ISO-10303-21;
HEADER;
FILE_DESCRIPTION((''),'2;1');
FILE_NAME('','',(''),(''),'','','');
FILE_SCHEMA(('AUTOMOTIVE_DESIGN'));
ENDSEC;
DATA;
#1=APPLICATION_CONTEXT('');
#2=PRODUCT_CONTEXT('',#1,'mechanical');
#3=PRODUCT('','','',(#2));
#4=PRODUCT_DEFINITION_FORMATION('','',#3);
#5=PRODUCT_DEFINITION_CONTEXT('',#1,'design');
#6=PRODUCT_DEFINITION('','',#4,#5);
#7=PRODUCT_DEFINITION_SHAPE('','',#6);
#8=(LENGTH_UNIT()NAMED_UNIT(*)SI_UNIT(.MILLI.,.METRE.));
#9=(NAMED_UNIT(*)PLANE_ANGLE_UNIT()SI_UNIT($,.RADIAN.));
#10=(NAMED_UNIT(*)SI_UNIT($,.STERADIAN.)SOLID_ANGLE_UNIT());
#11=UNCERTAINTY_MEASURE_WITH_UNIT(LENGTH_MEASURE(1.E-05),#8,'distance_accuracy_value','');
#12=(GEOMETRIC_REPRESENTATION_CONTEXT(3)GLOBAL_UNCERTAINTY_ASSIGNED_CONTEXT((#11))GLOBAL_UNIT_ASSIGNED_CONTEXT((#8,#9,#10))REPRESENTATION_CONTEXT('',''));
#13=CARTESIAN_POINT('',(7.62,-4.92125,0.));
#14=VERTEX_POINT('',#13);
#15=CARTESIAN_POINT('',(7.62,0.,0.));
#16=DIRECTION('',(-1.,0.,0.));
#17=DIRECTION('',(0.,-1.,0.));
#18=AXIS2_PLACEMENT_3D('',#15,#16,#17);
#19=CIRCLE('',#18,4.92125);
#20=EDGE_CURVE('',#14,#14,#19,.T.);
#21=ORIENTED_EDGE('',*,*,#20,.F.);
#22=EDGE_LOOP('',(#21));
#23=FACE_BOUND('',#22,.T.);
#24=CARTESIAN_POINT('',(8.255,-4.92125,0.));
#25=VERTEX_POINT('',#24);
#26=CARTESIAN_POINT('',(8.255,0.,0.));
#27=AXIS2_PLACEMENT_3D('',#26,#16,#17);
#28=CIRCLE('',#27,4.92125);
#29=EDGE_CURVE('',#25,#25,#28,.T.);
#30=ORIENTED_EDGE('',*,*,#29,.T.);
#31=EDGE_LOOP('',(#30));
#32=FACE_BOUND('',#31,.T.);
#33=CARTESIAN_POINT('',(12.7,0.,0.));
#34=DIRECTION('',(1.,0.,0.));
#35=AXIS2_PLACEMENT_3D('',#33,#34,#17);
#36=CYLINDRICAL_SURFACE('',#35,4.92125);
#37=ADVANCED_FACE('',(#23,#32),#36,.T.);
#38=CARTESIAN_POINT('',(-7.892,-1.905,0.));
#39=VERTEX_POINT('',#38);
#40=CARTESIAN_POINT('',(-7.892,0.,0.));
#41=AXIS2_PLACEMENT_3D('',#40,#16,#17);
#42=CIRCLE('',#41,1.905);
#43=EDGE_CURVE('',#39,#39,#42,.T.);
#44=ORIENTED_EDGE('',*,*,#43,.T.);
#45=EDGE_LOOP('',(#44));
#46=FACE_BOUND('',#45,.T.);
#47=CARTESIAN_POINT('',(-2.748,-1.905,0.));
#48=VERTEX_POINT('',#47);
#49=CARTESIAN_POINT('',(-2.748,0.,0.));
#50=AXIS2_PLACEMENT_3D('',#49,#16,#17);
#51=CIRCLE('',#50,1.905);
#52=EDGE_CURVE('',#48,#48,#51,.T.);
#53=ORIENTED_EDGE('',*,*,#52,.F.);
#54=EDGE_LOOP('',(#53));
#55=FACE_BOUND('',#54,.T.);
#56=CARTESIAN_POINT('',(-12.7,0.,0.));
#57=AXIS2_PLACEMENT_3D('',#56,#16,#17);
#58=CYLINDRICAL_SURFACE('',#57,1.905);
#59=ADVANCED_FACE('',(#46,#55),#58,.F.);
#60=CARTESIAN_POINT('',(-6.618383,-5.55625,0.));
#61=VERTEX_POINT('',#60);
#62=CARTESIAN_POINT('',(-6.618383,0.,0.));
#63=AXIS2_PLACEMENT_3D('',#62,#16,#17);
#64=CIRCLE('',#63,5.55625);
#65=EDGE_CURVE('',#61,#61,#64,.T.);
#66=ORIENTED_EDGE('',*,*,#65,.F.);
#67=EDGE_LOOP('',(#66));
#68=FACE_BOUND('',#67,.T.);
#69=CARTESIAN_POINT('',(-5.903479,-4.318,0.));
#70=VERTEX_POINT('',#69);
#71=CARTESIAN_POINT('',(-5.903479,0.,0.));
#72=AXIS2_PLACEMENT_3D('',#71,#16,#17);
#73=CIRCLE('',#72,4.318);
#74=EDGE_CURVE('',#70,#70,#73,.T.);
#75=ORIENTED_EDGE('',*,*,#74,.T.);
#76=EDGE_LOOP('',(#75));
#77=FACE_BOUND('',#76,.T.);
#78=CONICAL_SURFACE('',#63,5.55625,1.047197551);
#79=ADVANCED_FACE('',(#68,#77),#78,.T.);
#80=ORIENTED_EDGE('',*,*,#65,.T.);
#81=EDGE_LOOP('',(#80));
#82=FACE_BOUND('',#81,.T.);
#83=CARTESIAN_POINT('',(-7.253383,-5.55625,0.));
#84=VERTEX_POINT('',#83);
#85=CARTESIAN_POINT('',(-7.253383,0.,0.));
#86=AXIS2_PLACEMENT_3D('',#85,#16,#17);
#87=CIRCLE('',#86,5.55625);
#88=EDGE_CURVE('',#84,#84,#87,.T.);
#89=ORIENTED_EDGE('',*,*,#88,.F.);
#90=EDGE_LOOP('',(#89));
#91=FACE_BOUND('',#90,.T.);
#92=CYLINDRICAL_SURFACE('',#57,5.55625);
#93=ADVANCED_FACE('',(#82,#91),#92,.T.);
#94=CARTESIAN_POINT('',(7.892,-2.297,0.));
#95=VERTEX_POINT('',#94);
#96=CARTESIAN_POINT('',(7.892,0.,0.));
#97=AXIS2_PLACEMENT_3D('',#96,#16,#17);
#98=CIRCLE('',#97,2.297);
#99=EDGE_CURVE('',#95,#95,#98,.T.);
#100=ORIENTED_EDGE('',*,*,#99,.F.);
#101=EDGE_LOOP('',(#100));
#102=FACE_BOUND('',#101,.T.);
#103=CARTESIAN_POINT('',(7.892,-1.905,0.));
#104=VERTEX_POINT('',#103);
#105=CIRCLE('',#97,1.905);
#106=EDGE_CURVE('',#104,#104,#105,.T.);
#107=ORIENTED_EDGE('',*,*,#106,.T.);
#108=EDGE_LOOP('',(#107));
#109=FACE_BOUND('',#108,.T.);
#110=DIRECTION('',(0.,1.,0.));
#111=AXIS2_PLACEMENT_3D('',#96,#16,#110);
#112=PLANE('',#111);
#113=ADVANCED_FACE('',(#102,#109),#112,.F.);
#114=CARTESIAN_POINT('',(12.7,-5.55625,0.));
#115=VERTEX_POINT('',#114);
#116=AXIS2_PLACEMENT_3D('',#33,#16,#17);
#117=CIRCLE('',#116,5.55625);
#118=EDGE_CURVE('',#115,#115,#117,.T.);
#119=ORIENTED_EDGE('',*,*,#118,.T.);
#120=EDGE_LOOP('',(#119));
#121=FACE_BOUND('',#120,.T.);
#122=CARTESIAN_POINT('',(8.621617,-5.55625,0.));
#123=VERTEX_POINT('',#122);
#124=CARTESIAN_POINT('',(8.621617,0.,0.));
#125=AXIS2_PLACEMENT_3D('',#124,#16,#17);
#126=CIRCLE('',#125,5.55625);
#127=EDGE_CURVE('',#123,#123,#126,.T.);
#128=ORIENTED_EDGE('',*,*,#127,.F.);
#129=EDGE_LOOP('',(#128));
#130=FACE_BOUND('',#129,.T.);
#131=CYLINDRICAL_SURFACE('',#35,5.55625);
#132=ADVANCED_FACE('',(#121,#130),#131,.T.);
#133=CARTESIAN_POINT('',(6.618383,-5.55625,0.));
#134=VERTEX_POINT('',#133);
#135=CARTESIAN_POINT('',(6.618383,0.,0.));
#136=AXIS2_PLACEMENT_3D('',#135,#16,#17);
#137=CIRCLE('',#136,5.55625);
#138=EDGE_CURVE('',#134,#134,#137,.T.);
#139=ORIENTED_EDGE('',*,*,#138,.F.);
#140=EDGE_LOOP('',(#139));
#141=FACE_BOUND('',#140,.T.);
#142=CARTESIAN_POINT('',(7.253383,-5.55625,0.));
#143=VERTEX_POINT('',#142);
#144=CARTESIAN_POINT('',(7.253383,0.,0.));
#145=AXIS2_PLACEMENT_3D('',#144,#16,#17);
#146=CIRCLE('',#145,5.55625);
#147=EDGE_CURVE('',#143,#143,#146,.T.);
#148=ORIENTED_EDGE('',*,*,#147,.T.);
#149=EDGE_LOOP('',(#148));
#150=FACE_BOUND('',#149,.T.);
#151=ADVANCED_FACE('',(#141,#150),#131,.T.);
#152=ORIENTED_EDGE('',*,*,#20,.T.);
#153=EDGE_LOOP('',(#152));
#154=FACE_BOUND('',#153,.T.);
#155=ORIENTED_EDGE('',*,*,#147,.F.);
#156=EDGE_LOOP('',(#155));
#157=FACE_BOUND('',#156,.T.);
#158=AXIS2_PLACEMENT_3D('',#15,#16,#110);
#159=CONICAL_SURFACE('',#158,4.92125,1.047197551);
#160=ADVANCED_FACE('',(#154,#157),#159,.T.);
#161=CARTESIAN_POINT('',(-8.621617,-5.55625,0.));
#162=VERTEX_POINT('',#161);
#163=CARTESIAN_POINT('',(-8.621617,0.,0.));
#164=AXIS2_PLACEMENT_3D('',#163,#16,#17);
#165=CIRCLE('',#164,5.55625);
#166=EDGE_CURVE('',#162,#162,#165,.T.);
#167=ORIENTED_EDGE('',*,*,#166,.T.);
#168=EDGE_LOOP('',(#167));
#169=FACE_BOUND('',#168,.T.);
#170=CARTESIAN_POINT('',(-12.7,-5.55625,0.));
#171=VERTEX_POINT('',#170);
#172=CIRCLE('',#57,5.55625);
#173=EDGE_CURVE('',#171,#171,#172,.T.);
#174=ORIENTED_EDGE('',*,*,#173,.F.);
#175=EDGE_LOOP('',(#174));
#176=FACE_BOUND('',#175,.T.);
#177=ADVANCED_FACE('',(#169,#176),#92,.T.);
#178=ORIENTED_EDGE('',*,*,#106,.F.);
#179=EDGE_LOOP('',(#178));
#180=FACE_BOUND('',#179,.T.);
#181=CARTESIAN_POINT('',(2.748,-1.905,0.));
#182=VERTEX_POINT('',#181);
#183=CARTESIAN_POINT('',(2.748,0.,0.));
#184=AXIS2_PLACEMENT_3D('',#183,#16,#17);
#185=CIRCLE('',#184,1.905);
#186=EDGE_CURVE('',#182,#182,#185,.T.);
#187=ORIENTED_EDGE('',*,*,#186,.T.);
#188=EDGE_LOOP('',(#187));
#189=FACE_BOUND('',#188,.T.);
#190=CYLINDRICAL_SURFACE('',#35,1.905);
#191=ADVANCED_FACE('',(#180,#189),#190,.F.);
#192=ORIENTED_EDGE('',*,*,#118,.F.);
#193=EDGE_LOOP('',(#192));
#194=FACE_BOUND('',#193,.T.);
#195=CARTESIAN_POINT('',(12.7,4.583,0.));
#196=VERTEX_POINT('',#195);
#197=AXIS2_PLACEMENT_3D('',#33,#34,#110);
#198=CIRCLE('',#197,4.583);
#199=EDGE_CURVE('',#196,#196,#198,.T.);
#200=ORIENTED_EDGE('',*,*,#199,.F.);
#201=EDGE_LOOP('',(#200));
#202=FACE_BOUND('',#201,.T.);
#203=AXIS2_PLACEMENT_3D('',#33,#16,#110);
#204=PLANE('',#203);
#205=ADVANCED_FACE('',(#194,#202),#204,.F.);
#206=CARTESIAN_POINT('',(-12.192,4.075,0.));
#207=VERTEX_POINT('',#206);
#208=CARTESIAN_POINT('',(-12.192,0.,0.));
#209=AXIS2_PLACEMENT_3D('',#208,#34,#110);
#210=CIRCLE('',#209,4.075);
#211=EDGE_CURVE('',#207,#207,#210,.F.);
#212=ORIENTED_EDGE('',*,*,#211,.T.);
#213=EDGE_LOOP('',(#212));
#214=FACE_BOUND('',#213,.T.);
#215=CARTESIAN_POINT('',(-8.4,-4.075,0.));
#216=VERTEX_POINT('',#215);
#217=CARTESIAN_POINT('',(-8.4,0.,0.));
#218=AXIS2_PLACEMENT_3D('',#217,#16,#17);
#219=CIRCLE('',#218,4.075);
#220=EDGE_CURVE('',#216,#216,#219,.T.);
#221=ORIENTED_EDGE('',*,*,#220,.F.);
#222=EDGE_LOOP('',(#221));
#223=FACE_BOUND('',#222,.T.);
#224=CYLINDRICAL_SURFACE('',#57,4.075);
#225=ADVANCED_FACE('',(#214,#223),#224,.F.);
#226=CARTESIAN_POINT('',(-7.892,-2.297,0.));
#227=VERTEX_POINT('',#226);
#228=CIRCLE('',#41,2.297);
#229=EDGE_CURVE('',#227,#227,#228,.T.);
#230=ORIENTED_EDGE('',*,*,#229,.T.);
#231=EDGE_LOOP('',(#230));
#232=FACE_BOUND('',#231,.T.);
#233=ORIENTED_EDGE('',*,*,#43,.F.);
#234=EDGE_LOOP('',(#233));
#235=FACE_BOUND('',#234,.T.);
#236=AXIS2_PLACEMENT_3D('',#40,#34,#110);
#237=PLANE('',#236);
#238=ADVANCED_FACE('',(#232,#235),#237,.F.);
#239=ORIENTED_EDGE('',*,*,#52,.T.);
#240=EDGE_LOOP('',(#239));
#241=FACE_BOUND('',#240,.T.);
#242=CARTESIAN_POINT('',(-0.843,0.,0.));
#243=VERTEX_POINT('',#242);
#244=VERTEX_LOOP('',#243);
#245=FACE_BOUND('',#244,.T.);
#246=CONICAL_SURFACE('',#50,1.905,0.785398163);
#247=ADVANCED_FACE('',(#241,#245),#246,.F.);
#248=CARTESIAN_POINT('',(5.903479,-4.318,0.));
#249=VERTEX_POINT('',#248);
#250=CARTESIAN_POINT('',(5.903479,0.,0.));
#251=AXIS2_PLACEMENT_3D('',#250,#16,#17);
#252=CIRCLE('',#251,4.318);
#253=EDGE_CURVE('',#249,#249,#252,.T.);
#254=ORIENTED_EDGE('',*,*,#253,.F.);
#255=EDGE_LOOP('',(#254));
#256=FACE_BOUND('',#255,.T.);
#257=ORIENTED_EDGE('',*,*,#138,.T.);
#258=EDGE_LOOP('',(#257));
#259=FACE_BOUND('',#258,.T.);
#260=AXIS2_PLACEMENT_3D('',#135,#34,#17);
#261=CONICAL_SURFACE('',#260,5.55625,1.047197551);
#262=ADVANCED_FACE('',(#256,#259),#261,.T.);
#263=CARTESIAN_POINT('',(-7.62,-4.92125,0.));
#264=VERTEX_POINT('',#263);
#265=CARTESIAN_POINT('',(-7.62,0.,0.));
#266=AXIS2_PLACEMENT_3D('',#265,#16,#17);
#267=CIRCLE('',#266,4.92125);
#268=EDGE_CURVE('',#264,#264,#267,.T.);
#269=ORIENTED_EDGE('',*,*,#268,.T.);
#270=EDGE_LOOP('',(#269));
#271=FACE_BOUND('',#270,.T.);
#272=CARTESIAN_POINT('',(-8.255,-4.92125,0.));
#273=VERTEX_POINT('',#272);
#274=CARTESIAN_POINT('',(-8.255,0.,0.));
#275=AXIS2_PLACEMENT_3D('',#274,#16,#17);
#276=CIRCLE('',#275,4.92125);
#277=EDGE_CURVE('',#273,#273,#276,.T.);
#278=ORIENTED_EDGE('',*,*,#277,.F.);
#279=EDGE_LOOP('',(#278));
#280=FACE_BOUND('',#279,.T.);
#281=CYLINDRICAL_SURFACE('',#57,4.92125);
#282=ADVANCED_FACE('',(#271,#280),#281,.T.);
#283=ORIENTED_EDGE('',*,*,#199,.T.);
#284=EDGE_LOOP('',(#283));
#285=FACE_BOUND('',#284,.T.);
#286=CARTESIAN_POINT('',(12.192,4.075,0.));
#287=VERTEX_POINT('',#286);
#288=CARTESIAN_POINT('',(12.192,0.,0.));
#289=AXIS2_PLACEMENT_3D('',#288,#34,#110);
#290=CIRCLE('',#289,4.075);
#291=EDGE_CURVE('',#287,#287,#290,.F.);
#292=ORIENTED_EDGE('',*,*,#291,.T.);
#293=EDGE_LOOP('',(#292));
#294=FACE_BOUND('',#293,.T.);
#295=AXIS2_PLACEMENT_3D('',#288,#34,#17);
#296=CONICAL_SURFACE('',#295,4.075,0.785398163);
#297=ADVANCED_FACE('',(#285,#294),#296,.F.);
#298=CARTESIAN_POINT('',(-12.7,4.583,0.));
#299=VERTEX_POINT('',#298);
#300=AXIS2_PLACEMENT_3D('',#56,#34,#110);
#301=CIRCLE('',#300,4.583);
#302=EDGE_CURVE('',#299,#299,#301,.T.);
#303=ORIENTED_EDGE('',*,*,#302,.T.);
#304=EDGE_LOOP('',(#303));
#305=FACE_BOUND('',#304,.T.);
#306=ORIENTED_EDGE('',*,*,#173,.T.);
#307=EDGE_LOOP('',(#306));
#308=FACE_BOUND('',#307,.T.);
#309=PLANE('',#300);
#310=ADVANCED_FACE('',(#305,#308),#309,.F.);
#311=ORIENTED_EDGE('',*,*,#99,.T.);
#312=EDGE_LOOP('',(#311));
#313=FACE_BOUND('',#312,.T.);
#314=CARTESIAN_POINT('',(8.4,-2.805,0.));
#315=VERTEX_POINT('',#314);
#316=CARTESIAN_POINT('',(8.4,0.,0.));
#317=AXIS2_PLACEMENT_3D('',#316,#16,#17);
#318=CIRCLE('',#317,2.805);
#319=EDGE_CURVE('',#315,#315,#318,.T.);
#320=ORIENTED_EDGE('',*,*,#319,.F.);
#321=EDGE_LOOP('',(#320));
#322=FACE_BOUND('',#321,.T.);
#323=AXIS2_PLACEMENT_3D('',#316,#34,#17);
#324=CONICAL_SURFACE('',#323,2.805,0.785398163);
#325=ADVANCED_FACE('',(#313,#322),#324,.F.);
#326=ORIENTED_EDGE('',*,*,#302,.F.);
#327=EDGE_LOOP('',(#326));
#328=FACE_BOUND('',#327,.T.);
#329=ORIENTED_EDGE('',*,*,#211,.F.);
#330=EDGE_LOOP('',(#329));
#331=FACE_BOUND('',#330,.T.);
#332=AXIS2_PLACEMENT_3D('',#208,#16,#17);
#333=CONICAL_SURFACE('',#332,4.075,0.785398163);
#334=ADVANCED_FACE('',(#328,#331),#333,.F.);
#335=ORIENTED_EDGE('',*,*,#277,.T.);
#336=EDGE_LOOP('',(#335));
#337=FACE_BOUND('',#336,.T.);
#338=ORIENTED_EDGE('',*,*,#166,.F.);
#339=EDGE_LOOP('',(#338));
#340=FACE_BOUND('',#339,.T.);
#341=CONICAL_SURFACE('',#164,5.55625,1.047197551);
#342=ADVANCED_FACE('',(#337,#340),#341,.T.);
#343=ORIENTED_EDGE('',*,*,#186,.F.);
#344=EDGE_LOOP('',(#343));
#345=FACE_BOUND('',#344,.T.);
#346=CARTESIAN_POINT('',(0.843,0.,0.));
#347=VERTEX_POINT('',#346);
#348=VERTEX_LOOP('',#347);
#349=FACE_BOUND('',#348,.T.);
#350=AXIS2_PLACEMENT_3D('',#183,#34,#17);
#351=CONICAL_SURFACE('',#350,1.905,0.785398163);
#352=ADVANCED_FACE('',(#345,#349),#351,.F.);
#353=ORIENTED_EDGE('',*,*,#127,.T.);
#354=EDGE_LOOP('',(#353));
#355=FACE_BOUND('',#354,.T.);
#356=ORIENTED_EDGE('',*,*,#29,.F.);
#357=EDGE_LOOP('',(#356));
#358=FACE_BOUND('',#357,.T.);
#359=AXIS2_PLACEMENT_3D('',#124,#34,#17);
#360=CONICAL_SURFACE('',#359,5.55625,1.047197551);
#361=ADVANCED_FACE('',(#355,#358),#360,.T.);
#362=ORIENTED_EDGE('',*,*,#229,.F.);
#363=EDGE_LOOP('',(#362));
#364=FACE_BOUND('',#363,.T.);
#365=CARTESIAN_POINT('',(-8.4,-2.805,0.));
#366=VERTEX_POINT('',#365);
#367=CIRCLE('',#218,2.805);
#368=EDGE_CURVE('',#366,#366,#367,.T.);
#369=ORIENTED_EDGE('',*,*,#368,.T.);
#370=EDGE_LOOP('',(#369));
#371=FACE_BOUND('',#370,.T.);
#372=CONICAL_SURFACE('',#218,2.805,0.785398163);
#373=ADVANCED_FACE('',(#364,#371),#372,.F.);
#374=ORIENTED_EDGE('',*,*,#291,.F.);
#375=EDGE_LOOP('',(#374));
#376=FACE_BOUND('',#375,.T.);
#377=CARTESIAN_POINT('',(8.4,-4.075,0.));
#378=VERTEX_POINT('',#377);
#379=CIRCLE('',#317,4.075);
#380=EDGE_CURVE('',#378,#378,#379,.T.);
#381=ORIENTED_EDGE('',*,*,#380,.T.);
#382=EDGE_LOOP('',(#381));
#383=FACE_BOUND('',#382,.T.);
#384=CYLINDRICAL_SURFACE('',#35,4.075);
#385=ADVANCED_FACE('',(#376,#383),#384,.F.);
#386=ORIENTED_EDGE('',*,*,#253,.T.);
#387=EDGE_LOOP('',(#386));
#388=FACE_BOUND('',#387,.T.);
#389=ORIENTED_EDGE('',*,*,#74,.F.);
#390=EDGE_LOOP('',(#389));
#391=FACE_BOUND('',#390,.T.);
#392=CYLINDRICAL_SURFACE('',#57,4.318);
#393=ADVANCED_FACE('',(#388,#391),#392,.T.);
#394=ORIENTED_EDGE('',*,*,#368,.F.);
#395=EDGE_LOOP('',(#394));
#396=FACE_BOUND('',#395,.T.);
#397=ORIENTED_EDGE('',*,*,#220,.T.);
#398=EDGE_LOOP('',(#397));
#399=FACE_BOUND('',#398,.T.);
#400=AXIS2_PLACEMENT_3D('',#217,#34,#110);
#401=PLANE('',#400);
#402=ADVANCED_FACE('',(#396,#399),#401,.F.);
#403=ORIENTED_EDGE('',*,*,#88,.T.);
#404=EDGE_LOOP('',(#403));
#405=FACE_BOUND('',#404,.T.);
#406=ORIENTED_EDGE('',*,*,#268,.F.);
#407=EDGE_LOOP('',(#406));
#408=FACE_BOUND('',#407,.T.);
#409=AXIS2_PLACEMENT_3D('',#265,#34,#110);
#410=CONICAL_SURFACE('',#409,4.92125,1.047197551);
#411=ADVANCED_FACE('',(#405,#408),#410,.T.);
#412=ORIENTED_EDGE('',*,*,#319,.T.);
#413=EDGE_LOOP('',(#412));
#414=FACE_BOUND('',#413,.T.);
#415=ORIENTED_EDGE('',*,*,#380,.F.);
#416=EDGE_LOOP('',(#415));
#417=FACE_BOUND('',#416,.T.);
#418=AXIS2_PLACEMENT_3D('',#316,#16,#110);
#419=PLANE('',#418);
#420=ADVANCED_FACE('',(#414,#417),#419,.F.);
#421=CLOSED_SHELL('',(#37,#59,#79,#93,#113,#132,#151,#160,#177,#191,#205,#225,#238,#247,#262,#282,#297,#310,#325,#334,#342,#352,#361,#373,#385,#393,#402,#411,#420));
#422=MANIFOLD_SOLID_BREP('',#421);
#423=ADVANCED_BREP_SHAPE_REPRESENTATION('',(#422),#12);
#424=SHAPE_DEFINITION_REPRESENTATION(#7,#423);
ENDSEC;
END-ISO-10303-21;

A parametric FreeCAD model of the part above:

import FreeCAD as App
import Part
import Sketcher
from FreeCAD import Vector
Q = App.Units.Quantity


def edges_at(feature, points):
    """Names of the edges that pass closest to the given points."""
    edges = feature.Shape.Edges
    near = lambda p: min(range(len(edges)), key=lambda i: edges[i].distToShape(Part.Vertex(*p))[0])
    return sorted({f"Edge{near(p) + 1}" for p in points})


def add_polygon(sketch, points):
    """Adds a closed chain of lines whose ends are joined by coincident constraints."""
    first, n = sketch.GeometryCount, len(points)
    for a, b in zip(points, points[1:] + points[:1]):
        sketch.addGeometry(Part.LineSegment(App.Vector(*a, 0), App.Vector(*b, 0)), False)
    for i in range(n):
        sketch.addConstraint(Sketcher.Constraint("Coincident", first + i, 2, first + (i + 1) % n, 1))

doc = App.newDocument("Part")
body = doc.addObject("PartDesign::Body", "Body")

sketch1 = body.newObject("Sketcher::SketchObject", "Sketch")
sketch1.AttachmentSupport = (doc.getObject("XY_Plane"), [""])
sketch1.MapMode = "FlatFace"
add_polygon(sketch1, [(-8.621617, 5.55625), (-12.7, 5.55625), (-12.7, 4.075), (-8.4, 4.075), (-8.4, 2.805), (-7.892, 2.297), (-7.892, 1.905), (-2.748, 1.905), (-0.843, 0), (0, 0), (0, 4.318), (-5.903479, 4.318), (-6.618383, 5.55625), (-7.253383, 5.55625), (-7.62, 4.92125), (-8.255, 4.92125)])
sketch1.addConstraint(Sketcher.Constraint("Horizontal", 0))
sketch1.addConstraint(Sketcher.Constraint("Vertical", 1))
sketch1.addConstraint(Sketcher.Constraint("Horizontal", 2))
sketch1.addConstraint(Sketcher.Constraint("Vertical", 3))
sketch1.addConstraint(Sketcher.Constraint("Vertical", 5))
sketch1.addConstraint(Sketcher.Constraint("Horizontal", 6))
sketch1.addConstraint(Sketcher.Constraint("Horizontal", 8))
sketch1.addConstraint(Sketcher.Constraint("Vertical", 9))
sketch1.addConstraint(Sketcher.Constraint("Horizontal", 10))
sketch1.addConstraint(Sketcher.Constraint("Horizontal", 12))
sketch1.addConstraint(Sketcher.Constraint("Horizontal", 14))
sketch1.addConstraint(Sketcher.Constraint("Coincident", 8, 2, -1, 1))
sketch1.addConstraint(Sketcher.Constraint("Parallel", 4, 7))
sketch1.addConstraint(Sketcher.Constraint("Parallel", 11, 15))
sketch1.addConstraint(Sketcher.Constraint("Horizontal", 0, 2, 11, 2))
sketch1.addConstraint(Sketcher.Constraint("Equal", 12, 14))
sketch1.addConstraint(Sketcher.Constraint("Equal", 13, 15))
sketch1.addConstraint(Sketcher.Constraint("Angle", 4, Q("-45 deg")))
sketch1.addConstraint(Sketcher.Constraint("Angle", 11, Q("120 deg")))
sketch1.addConstraint(Sketcher.Constraint("DistanceY", 3, 2, 3, 1, Q("0.05 in")))
sketch1.addConstraint(Sketcher.Constraint("DistanceY", 9, 1, 9, 2, Q("0.17 in")))
sketch1.addConstraint(Sketcher.Constraint("DistanceX", 0, 2, -1, 1, Q("0.5 in")))
sketch1.addConstraint(Sketcher.Constraint("DistanceX", 13, 2, -1, 1, Q("0.3 in")))
sketch1.addConstraint(Sketcher.Constraint("DistanceX", 12, 2, 12, 1, Q("0.025 in")))
sketch1.addConstraint(Sketcher.Constraint("DistanceX", 3, 2, 4, 2, Q("0.02 in")))
sketch1.addConstraint(Sketcher.Constraint("DistanceY", -1, 1, 0, 2, Q("0.21875 in")))
sketch1.addConstraint(Sketcher.Constraint("DistanceY", -1, 1, 5, 2, Q("0.075 in")))
sketch1.addConstraint(Sketcher.Constraint("DistanceY", 13, 2, 12, 2, Q("0.025 in")))
sketch1.addConstraint(Sketcher.Constraint("DistanceX", 2, 1, 2, 2, Q("4.3 mm")))
sketch1.addConstraint(Sketcher.Constraint("DistanceX", 6, 1, 6, 2, Q("5.144 mm")))
sketch1.addConstraint(Sketcher.Constraint("DistanceY", 5, 2, 5, 1, Q("0.392 mm")))
revolution = body.newObject("PartDesign::Revolution", "Revolution")
revolution.Profile = sketch1
revolution.ReferenceAxis = (sketch1, ["H_Axis"])
revolution.Angle = 360
doc.recompute()

chamfer = body.newObject("PartDesign::Chamfer", "Chamfer")
chamfer.Base = (revolution, edges_at(revolution, [(-12.7, 4.075, 0)]))
chamfer.Size = Q("0.02 in")
body2 = doc.addObject("PartDesign::Body", "Body001")
doc.recompute()

body2.BaseFeature = body
doc.recompute()

mirroring = doc.addObject("Part::Mirroring", "Mirroring")
mirroring.Source = body
mirroring.Base = Vector(0, 0, 0)
mirroring.Normal = Vector(1, 0, 0)
body3 = doc.addObject("PartDesign::Body", "Body002")
body3.BaseFeature = mirroring
boolean = body2.newObject("PartDesign::Boolean", "Boolean")
boolean.Type = "Fuse"
boolean.addObjects([body3])
doc.recompute()
mirroring.Visibility = False

doc.recompute()
